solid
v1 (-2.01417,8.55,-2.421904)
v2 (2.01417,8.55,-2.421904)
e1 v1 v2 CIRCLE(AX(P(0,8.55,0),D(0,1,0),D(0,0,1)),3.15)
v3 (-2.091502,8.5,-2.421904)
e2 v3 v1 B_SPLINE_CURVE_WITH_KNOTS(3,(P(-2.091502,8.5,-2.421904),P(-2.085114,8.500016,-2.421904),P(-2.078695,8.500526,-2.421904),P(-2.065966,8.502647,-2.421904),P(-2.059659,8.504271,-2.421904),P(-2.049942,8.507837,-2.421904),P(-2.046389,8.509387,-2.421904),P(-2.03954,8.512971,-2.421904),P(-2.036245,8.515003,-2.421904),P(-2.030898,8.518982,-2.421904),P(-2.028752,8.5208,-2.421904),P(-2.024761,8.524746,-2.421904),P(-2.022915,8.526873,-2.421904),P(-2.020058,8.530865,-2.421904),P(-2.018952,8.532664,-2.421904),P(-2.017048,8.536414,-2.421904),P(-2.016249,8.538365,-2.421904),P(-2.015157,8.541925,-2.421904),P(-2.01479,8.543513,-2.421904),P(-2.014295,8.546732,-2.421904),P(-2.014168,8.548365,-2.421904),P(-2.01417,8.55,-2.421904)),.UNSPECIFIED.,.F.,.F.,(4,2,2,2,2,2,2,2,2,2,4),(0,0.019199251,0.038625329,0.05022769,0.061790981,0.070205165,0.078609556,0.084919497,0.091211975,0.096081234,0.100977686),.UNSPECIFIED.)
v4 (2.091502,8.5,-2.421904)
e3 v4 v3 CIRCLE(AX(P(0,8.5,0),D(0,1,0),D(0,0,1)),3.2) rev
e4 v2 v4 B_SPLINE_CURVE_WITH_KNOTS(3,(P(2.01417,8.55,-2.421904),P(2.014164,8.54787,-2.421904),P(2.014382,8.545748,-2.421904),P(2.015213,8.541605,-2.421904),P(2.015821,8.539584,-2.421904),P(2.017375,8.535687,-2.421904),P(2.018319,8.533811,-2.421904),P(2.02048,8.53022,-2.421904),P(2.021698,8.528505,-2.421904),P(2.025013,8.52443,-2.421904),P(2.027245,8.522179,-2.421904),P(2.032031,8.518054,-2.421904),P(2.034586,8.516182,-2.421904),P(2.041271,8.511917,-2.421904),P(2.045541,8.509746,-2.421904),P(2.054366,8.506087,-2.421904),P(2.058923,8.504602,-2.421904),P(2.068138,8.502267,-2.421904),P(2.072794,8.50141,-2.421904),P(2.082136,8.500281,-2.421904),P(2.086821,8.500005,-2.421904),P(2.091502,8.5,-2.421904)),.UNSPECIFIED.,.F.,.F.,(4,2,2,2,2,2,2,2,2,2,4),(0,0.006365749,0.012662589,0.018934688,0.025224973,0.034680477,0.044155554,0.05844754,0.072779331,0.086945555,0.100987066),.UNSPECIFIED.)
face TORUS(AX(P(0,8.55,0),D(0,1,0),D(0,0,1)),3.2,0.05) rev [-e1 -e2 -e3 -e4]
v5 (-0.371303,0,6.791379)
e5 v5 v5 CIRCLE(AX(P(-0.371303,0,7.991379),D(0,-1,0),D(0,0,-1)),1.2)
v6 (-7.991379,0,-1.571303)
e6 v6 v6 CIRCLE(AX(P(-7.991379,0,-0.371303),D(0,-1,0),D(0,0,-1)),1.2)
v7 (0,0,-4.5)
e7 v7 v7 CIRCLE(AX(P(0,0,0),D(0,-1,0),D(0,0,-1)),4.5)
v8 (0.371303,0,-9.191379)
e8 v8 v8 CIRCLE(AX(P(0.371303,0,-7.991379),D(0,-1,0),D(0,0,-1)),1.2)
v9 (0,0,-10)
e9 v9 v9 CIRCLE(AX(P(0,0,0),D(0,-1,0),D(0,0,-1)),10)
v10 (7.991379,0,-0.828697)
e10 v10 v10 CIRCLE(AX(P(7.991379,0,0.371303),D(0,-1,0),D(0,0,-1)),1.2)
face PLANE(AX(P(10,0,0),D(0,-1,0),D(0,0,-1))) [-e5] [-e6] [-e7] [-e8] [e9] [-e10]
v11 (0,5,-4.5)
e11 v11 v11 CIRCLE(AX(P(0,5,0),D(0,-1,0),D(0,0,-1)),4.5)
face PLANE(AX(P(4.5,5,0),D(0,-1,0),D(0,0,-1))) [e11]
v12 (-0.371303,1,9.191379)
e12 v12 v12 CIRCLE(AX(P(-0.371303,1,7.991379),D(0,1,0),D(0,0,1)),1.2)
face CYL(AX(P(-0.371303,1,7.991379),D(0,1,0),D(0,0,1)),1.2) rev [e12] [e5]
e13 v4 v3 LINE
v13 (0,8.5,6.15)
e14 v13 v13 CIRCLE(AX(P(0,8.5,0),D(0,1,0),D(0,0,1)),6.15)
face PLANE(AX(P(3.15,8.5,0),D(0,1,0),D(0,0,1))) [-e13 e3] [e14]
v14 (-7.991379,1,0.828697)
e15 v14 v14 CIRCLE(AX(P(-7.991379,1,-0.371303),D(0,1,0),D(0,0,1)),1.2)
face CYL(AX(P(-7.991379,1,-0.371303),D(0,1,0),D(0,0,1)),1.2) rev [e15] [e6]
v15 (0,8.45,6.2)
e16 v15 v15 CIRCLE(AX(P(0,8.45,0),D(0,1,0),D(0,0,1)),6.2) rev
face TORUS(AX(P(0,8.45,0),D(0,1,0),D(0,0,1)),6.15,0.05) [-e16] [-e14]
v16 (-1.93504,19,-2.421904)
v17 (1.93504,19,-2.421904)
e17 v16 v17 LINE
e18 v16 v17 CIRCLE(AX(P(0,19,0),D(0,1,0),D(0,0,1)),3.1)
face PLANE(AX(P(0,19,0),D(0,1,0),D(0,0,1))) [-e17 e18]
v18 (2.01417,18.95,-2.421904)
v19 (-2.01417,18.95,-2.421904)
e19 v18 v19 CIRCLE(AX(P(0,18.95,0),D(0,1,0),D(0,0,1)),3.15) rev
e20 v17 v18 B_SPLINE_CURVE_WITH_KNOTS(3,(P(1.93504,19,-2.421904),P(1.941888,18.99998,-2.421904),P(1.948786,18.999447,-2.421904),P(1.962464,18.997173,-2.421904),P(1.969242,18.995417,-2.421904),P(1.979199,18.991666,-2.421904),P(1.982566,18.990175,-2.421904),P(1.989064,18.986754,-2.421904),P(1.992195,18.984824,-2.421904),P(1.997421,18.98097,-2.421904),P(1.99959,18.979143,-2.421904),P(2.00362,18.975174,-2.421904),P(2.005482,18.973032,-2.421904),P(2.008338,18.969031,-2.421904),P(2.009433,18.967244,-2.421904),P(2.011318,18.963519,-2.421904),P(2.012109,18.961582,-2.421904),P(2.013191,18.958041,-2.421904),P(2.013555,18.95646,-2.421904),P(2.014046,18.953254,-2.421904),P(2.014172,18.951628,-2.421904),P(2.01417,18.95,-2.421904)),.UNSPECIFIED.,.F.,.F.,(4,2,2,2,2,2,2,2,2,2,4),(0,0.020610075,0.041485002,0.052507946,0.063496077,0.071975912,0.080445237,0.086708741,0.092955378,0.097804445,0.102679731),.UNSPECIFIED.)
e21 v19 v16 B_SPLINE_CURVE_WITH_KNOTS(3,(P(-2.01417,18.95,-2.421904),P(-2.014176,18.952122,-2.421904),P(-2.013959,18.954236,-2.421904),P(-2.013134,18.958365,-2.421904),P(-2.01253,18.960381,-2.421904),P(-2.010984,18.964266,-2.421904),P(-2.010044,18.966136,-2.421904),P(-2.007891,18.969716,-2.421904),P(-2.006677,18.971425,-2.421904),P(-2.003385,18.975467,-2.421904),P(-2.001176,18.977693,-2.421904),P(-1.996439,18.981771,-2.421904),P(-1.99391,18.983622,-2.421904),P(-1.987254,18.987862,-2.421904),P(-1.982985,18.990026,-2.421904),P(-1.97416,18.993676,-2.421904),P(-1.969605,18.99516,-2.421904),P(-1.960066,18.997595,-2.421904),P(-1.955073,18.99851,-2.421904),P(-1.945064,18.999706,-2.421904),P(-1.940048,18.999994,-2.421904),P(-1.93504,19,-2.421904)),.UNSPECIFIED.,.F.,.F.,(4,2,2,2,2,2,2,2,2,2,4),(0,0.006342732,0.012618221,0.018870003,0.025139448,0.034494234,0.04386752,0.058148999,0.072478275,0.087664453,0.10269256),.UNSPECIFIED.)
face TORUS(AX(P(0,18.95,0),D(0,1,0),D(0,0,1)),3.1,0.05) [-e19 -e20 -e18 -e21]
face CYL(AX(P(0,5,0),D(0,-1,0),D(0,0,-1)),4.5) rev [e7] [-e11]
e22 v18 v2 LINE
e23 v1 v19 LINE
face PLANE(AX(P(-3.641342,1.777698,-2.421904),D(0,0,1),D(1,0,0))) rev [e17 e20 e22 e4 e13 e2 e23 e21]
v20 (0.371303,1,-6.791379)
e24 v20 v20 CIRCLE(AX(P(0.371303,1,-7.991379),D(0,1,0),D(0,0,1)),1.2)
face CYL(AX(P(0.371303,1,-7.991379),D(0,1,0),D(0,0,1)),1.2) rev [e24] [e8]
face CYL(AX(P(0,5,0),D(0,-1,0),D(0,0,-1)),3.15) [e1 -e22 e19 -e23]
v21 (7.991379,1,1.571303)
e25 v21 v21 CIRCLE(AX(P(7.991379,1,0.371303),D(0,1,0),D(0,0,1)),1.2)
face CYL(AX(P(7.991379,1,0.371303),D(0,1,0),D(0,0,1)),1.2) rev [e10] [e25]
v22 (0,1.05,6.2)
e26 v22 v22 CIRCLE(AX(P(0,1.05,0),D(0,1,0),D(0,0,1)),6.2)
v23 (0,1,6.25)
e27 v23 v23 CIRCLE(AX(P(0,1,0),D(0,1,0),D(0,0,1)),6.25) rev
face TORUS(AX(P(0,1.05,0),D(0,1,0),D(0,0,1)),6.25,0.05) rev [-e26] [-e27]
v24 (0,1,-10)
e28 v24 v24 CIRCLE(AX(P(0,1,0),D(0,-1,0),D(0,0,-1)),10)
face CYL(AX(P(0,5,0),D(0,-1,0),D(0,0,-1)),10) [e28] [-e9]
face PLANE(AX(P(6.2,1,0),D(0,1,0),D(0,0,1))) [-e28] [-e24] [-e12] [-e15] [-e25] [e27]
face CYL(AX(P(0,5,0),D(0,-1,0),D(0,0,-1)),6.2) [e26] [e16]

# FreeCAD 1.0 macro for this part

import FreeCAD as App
import Part
import Sketcher
from FreeCAD import Vector
Q = App.Units.Quantity


def edges_at(feature, points):
    """Names of the edges that pass closest to the given points."""
    edges = feature.Shape.Edges
    near = lambda p: min(range(len(edges)), key=lambda i: edges[i].distToShape(Part.Vertex(*p))[0])
    return sorted({f"Edge{near(p) + 1}" for p in points})

doc = App.newDocument("Part")
body = doc.addObject("PartDesign::Body", "Body")

# Sketch on XY plane
sketch1 = body.newObject("Sketcher::SketchObject", "Sketch")
sketch1.AttachmentSupport = (doc.getObject("XY_Plane"), [""])
sketch1.MapMode = "FlatFace"
sketch1.addGeometry(Part.LineSegment(Vector(3.1, 19, 0), Vector(0, 19, 0)), False)
sketch1.addGeometry(Part.LineSegment(Vector(0, 19, 0), Vector(0, 5, 0)), False)
sketch1.addGeometry(Part.LineSegment(Vector(0, 5, 0), Vector(4.5, 5, 0)), False)
sketch1.addGeometry(Part.LineSegment(Vector(4.5, 5, 0), Vector(4.5, 0, 0)), False)
sketch1.addGeometry(Part.LineSegment(Vector(4.5, 0, 0), Vector(10, 0, 0)), False)
sketch1.addGeometry(Part.LineSegment(Vector(10, 0, 0), Vector(10, 1, 0)), False)
sketch1.addGeometry(Part.LineSegment(Vector(10, 1, 0), Vector(6.2, 1, 0)), False)
sketch1.addGeometry(Part.LineSegment(Vector(6.2, 1, 0), Vector(6.2, 8.5, 0)), False)
sketch1.addGeometry(Part.LineSegment(Vector(6.2, 8.5, 0), Vector(3.1, 8.5, 0)), False)
sketch1.addGeometry(Part.LineSegment(Vector(3.1, 8.5, 0), Vector(3.1, 19, 0)), False)
sketch1.addConstraint(Sketcher.Constraint("Coincident", 0, 2, 1, 1))
sketch1.addConstraint(Sketcher.Constraint("Coincident", 1, 2, 2, 1))
sketch1.addConstraint(Sketcher.Constraint("Coincident", 2, 2, 3, 1))
sketch1.addConstraint(Sketcher.Constraint("Coincident", 3, 2, 4, 1))
sketch1.addConstraint(Sketcher.Constraint("Coincident", 4, 2, 5, 1))
sketch1.addConstraint(Sketcher.Constraint("Coincident", 5, 2, 6, 1))
sketch1.addConstraint(Sketcher.Constraint("Coincident", 6, 2, 7, 1))
sketch1.addConstraint(Sketcher.Constraint("Coincident", 7, 2, 8, 1))
sketch1.addConstraint(Sketcher.Constraint("Coincident", 8, 2, 9, 1))
sketch1.addConstraint(Sketcher.Constraint("Coincident", 9, 2, 0, 1))
sketch1.addConstraint(Sketcher.Constraint("Horizontal", 0))
sketch1.addConstraint(Sketcher.Constraint("Vertical", 1))
sketch1.addConstraint(Sketcher.Constraint("Horizontal", 2))
sketch1.addConstraint(Sketcher.Constraint("Vertical", 3))
sketch1.addConstraint(Sketcher.Constraint("Horizontal", 4))
sketch1.addConstraint(Sketcher.Constraint("Vertical", 5))
sketch1.addConstraint(Sketcher.Constraint("Horizontal", 6))
sketch1.addConstraint(Sketcher.Constraint("Vertical", 7))
sketch1.addConstraint(Sketcher.Constraint("Horizontal", 8))
sketch1.addConstraint(Sketcher.Constraint("Vertical", 9))
sketch1.addConstraint(Sketcher.Constraint("PointOnObject", 0, 2, -2))
sketch1.addConstraint(Sketcher.Constraint("PointOnObject", 3, 2, -1))
sketch1.addConstraint(Sketcher.Constraint("DistanceY", 1, 2, 1, 1, Q("14 mm")))
sketch1.addConstraint(Sketcher.Constraint("DistanceY", 3, 2, 3, 1, Q("5 mm")))
sketch1.addConstraint(Sketcher.Constraint("DistanceY", 5, 1, 5, 2, Q("1 mm")))
sketch1.addConstraint(Sketcher.Constraint("DistanceX", 2, 1, 2, 2, Q("4.5 mm")))
sketch1.addConstraint(Sketcher.Constraint("DistanceX", 4, 1, 4, 2, Q("5.5 mm")))
sketch1.addConstraint(Sketcher.Constraint("DistanceX", 6, 2, 6, 1, Q("3.8 mm")))
sketch1.addConstraint(Sketcher.Constraint("DistanceY", 7, 1, 7, 2, Q("7.5 mm")))
sketch1.addConstraint(Sketcher.Constraint("DistanceX", 0, 2, 0, 1, Q("3.15 mm")))
revolution = body.newObject("PartDesign::Revolution", "Revolution")
revolution.Profile = sketch1
revolution.ReferenceAxis = (sketch1, ["V_Axis"])
revolution.Angle = 360

# Sketch on XZ plane
sketch2 = body.newObject("Sketcher::SketchObject", "Sketch001")
sketch2.AttachmentSupport = (doc.getObject("XZ_Plane"), [""])
sketch2.MapMode = "FlatFace"
sketch2.AttachmentOffset = App.Placement(Vector(0, 0, -19), App.Rotation())
sketch2.addGeometry(Part.LineSegment(Vector(-3.6, -3.8, 0), Vector(-3.6, -2.4, 0)), False)
sketch2.addGeometry(Part.LineSegment(Vector(-3.6, -2.4, 0), Vector(2.9, -2.4, 0)), False)
sketch2.addGeometry(Part.LineSegment(Vector(2.9, -2.4, 0), Vector(2.9, -3.8, 0)), False)
sketch2.addGeometry(Part.LineSegment(Vector(2.9, -3.8, 0), Vector(-3.6, -3.8, 0)), False)
sketch2.addConstraint(Sketcher.Constraint("Coincident", 0, 2, 1, 1))
sketch2.addConstraint(Sketcher.Constraint("Coincident", 1, 2, 2, 1))
sketch2.addConstraint(Sketcher.Constraint("Coincident", 2, 2, 3, 1))
sketch2.addConstraint(Sketcher.Constraint("Coincident", 3, 2, 0, 1))
sketch2.addConstraint(Sketcher.Constraint("Vertical", 0))
sketch2.addConstraint(Sketcher.Constraint("Horizontal", 1))
sketch2.addConstraint(Sketcher.Constraint("Vertical", 2))
sketch2.addConstraint(Sketcher.Constraint("Horizontal", 3))
sketch2.addConstraint(Sketcher.Constraint("DistanceY", 0, 1, 0, 2, Q("1.386049 mm")))
sketch2.addConstraint(Sketcher.Constraint("DistanceX", 1, 1, 1, 2, Q("6.577858 mm")))
sketch2.addConstraint(Sketcher.Constraint("DistanceX", 0, 2, -1, 1, Q("3.641342 mm")))
sketch2.addConstraint(Sketcher.Constraint("DistanceY", 0, 2, -1, 1, Q("2.421904 mm")))
pocket1 = body.newObject("PartDesign::Pocket", "Pocket")
pocket1.Profile = sketch2
pocket1.Length = 10.5
pocket1.Reversed = True

# Sketch on XZ plane
sketch3 = body.newObject("Sketcher::SketchObject", "Sketch002")
sketch3.AttachmentSupport = (doc.getObject("XZ_Plane"), [""])
sketch3.MapMode = "FlatFace"
sketch3.AttachmentOffset = App.Placement(Vector(0, 0, -1), App.Rotation())
sketch3.addGeometry(Part.Circle(Vector(0.4, -8, 0), Vector(0, 0, 1), 1.2), False)
sketch3.addConstraint(Sketcher.Constraint("Diameter", 0, Q("2.4 mm")))
sketch3.addConstraint(Sketcher.Constraint("DistanceY", 0, 3, -1, 1, Q("7.991379 mm")))
sketch3.addConstraint(Sketcher.Constraint("DistanceX", -1, 1, 0, 3, Q("0.371303 mm")))
doc.recompute()
hole = body.newObject("PartDesign::Hole", "Hole")
hole.Profile = sketch3
hole.ThreadType = "None"
hole.Diameter = 2.4
hole.DepthType = "ThroughAll"
hole.Reversed = True
doc.recompute()

polarpattern = body.newObject("PartDesign::PolarPattern", "PolarPattern")
polarpattern.Originals = [hole]
polarpattern.Axis = (doc.getObject("Y_Axis"), [""])
polarpattern.Angle = 360
polarpattern.Occurrences = 4
body.Tip = polarpattern
doc.recompute()

fillet = body.newObject("PartDesign::Fillet", "Fillet")
fillet.Base = (polarpattern, edges_at(polarpattern, [
    (0, 8.5, 6.2),
    (0, 8.5, 3.15),
    (0, 19, 3.15),
    (0, 1, 6.2),
]))
fillet.Radius = 0.05

doc.recompute()
